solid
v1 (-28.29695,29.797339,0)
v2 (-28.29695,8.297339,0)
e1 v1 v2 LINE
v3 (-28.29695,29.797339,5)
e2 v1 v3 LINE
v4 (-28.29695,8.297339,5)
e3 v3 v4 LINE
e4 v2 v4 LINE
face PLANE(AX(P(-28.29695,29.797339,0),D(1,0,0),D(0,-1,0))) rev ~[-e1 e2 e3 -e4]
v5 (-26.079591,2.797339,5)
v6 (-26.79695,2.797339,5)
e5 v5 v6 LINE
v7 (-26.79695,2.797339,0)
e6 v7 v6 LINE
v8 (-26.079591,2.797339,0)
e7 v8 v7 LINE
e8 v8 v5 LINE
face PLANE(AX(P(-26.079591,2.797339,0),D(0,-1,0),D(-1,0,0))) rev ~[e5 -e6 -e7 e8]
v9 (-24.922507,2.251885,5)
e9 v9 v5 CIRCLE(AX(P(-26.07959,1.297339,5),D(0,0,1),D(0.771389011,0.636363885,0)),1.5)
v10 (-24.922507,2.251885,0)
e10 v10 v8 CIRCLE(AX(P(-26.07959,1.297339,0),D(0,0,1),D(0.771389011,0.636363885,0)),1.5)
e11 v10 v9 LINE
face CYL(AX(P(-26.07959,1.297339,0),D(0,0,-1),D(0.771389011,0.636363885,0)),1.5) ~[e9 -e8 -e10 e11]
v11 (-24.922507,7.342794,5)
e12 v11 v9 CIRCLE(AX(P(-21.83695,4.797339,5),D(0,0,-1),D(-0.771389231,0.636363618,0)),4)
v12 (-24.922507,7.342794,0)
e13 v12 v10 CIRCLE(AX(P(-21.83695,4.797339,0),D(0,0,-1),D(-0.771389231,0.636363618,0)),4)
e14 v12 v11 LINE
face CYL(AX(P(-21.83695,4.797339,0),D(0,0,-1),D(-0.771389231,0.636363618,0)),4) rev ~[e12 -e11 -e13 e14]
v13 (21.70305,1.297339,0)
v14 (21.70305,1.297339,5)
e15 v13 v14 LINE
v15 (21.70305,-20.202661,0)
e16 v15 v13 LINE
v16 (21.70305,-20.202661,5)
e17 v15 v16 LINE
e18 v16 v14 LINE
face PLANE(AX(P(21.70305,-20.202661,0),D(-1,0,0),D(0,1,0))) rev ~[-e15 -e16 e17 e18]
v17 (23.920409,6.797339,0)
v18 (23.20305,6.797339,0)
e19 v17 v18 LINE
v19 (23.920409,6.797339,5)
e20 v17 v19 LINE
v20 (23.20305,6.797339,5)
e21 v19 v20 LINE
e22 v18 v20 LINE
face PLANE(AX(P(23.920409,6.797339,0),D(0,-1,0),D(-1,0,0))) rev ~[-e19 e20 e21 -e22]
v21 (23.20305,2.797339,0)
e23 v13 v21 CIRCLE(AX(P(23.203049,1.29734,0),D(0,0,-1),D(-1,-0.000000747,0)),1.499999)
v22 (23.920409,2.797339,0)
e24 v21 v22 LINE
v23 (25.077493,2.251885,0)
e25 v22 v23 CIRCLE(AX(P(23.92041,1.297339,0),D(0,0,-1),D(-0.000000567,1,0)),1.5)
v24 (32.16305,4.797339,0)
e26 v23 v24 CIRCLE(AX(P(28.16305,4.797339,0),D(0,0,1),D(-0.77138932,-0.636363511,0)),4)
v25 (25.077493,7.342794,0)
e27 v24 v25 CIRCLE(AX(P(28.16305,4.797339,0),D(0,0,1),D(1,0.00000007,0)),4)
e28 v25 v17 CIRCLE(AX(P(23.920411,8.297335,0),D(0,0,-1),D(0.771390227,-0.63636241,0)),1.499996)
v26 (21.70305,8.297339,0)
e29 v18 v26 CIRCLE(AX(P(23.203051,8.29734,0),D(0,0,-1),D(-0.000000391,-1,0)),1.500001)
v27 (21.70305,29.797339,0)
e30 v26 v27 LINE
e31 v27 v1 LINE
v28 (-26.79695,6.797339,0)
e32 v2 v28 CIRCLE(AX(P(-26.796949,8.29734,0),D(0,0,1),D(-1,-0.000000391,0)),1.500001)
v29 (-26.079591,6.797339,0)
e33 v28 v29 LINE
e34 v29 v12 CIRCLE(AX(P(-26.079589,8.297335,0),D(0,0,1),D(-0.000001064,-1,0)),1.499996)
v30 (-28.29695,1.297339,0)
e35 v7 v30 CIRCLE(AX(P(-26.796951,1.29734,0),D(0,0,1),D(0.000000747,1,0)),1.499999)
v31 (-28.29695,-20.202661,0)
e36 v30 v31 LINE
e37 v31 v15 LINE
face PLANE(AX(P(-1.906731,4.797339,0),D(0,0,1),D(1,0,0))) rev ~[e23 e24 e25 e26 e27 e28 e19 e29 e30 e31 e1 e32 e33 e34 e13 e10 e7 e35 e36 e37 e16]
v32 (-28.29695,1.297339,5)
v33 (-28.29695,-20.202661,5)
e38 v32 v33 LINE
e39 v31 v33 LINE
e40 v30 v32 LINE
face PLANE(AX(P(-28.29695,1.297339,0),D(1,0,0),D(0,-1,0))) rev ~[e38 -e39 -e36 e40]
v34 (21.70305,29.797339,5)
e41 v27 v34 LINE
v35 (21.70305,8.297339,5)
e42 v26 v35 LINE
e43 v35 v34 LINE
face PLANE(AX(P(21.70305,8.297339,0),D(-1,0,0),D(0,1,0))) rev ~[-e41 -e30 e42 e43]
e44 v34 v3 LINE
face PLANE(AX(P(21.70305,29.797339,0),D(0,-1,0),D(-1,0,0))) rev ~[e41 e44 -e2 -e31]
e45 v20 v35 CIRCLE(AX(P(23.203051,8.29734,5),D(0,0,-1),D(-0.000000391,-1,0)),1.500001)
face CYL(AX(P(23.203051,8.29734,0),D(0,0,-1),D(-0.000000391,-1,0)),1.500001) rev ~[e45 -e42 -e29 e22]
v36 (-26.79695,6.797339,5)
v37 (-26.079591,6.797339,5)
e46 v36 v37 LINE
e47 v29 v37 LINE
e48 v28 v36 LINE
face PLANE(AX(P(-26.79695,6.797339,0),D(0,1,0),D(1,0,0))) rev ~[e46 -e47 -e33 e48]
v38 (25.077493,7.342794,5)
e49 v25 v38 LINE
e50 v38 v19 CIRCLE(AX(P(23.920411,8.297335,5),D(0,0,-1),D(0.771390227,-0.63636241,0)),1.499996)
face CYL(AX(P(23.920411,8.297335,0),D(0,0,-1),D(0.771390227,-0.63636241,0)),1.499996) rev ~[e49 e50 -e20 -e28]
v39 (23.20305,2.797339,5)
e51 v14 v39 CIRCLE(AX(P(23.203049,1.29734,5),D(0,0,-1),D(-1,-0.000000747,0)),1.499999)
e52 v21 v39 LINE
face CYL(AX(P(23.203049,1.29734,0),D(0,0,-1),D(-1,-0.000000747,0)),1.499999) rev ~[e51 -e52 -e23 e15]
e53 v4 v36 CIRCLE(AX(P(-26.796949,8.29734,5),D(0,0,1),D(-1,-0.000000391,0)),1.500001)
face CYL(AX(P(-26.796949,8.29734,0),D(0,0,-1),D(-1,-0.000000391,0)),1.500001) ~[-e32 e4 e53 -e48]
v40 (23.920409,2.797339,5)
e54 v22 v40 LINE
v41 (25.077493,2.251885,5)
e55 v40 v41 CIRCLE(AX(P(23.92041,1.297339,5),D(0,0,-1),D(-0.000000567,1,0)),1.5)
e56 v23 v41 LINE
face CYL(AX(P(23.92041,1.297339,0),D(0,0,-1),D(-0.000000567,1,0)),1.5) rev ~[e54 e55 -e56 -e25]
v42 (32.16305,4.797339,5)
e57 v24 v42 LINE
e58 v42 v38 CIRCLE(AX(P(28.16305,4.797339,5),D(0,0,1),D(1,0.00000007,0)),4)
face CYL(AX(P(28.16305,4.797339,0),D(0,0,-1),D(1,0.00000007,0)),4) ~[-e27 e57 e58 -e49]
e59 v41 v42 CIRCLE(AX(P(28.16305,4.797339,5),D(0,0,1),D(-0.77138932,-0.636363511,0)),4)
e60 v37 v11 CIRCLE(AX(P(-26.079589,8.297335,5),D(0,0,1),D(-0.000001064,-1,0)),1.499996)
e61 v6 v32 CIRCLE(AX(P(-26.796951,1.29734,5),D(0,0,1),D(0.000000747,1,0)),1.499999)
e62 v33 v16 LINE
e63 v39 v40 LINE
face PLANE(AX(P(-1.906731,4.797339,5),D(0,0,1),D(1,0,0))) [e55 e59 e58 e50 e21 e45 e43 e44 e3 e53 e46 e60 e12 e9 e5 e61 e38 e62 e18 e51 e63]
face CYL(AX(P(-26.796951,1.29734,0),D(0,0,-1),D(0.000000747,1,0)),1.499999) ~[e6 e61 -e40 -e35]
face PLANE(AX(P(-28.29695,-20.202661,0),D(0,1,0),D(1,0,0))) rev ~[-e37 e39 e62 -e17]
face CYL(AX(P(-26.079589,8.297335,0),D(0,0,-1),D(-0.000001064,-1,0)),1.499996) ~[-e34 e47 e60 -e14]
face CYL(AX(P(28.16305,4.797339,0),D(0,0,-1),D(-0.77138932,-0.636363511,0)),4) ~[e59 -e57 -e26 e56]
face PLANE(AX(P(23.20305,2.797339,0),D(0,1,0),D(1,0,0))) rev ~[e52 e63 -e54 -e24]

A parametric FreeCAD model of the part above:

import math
import FreeCAD as App
import Part
import Sketcher
from FreeCAD import Vector

doc = App.newDocument("Part")
params = doc.addObject("Spreadsheet::Sheet", "Params")
for row, (alias, value) in enumerate([
    ("sketch1_radius", "4 mm"),
    ("sketch1_radius2", "1.500001 mm"),
    ("sketch1_width", "50 mm"),
    ("sketch1_height", "21.5 mm"),
    ("pad1_length", "5 mm"),
], start=1):
    params.set(f"A{row}", alias)
    params.set(f"B{row}", "=" + value)
    params.setAlias(f"B{row}", alias)

body = doc.addObject("PartDesign::Body", "Body")

sketch1 = body.newObject("Sketcher::SketchObject", "Sketch")
sketch1.AttachmentSupport = (doc.getObject("XY_Plane"), [""])
sketch1.MapMode = "FlatFace"
sketch1.addGeometry([
    Part.LineSegment(Vector(21.7, 29.8, 0), Vector(-28.3, 29.8, 0)),
    Part.LineSegment(Vector(-28.3, 29.8, 0), Vector(-28.3, 8.3, 0)),
    Part.ArcOfCircle(Part.Circle(Vector(-26.8, 8.3, 0), Vector(0, 0, 1), 1.5), math.radians(-180), math.radians(-90)),
    Part.LineSegment(Vector(-26.8, 6.8, 0), Vector(-26.1, 6.8, 0)),
    Part.ArcOfCircle(Part.Circle(Vector(-26.1, 8.3, 0), Vector(0, 0, 1), 1.5), math.radians(-90), math.radians(-40)),
    Part.ArcOfCircle(Part.Circle(Vector(-21.8, 4.8, 0), Vector(0, 0, 1), 4), math.radians(-140), math.radians(140)),
    Part.ArcOfCircle(Part.Circle(Vector(-26.1, 1.3, 0), Vector(0, 0, 1), 1.5), math.radians(40), math.radians(90)),
    Part.LineSegment(Vector(-26.1, 2.8, 0), Vector(-26.8, 2.8, 0)),
    Part.ArcOfCircle(Part.Circle(Vector(-26.8, 1.3, 0), Vector(0, 0, 1), 1.5), math.radians(90), math.radians(180)),
    Part.LineSegment(Vector(-28.3, 1.3, 0), Vector(-28.3, -20.2, 0)),
    Part.LineSegment(Vector(-28.3, -20.2, 0), Vector(21.7, -20.2, 0)),
    Part.LineSegment(Vector(21.7, -20.2, 0), Vector(21.7, 1.3, 0)),
    Part.ArcOfCircle(Part.Circle(Vector(23.2, 1.3, 0), Vector(0, 0, 1), 1.5), math.radians(90), math.radians(180)),
    Part.LineSegment(Vector(23.2, 2.8, 0), Vector(23.9, 2.8, 0)),
    Part.ArcOfCircle(Part.Circle(Vector(23.9, 1.3, 0), Vector(0, 0, 1), 1.5), math.radians(40), math.radians(90)),
    Part.ArcOfCircle(Part.Circle(Vector(28.2, 4.8, 0), Vector(0, 0, 1), 4), math.radians(-140), math.radians(0)),
    Part.ArcOfCircle(Part.Circle(Vector(28.2, 4.8, 0), Vector(0, 0, 1), 4), math.radians(0), math.radians(140)),
    Part.ArcOfCircle(Part.Circle(Vector(23.9, 8.3, 0), Vector(0, 0, 1), 1.5), math.radians(-90), math.radians(-40)),
    Part.LineSegment(Vector(23.9, 6.8, 0), Vector(23.2, 6.8, 0)),
    Part.ArcOfCircle(Part.Circle(Vector(23.2, 8.3, 0), Vector(0, 0, 1), 1.5), math.radians(-180), math.radians(-90)),
    Part.LineSegment(Vector(21.7, 8.3, 0), Vector(21.7, 29.8, 0)),
], False)
sketch1.addConstraint([
    Sketcher.Constraint("Coincident", 0, 2, 1, 1),
    Sketcher.Constraint("Tangent", 1, 2, 2, 1),
    Sketcher.Constraint("Tangent", 2, 2, 3, 1),
    Sketcher.Constraint("Tangent", 3, 2, 4, 1),
    Sketcher.Constraint("Tangent", 4, 2, 5, 2),
    Sketcher.Constraint("Tangent", 5, 1, 6, 1),
    Sketcher.Constraint("Tangent", 6, 2, 7, 1),
    Sketcher.Constraint("Tangent", 7, 2, 8, 1),
    Sketcher.Constraint("Tangent", 8, 2, 9, 1),
    Sketcher.Constraint("Coincident", 9, 2, 10, 1),
    Sketcher.Constraint("Coincident", 10, 2, 11, 1),
    Sketcher.Constraint("Tangent", 11, 2, 12, 2),
    Sketcher.Constraint("Tangent", 12, 1, 13, 1),
    Sketcher.Constraint("Tangent", 13, 2, 14, 2),
    Sketcher.Constraint("Tangent", 14, 1, 15, 1),
    Sketcher.Constraint("Tangent", 15, 2, 16, 1),
    Sketcher.Constraint("Tangent", 16, 2, 17, 2),
    Sketcher.Constraint("Tangent", 17, 1, 18, 1),
    Sketcher.Constraint("Tangent", 18, 2, 19, 2),
    Sketcher.Constraint("Tangent", 19, 1, 20, 1),
    Sketcher.Constraint("Coincident", 20, 2, 0, 1),
    Sketcher.Constraint("Horizontal", 0),
    Sketcher.Constraint("Vertical", 1),
    Sketcher.Constraint("Horizontal", 3),
    Sketcher.Constraint("Horizontal", 7),
    Sketcher.Constraint("Vertical", 9),
    Sketcher.Constraint("Horizontal", 10),
    Sketcher.Constraint("Vertical", 11),
    Sketcher.Constraint("Horizontal", 13),
    Sketcher.Constraint("Horizontal", 18),
    Sketcher.Constraint("Vertical", 20),
    Sketcher.Constraint("Equal", 2, 6),
    Sketcher.Constraint("Equal", 6, 8),
    Sketcher.Constraint("Equal", 8, 12),
    Sketcher.Constraint("Equal", 12, 14),
    Sketcher.Constraint("Equal", 5, 15),
    Sketcher.Constraint("Equal", 15, 16),
    Sketcher.Constraint("Equal", 4, 17),
    Sketcher.Constraint("Equal", 14, 19),
    Sketcher.Constraint("Horizontal", 8, 3, 12, 3),
    Sketcher.Constraint("Horizontal", 5, 3, 15, 3),
    Sketcher.Constraint("Horizontal", 4, 3, 17, 3),
    Sketcher.Constraint("Horizontal", 16, 3, 15, 2),
    Sketcher.Constraint("Vertical", 4, 3, 6, 3),
    Sketcher.Constraint("Vertical", 2, 3, 8, 3),
    Sketcher.Constraint("Vertical", 12, 3, 19, 3),
    Sketcher.Constraint("Vertical", 4, 2, 5, 1),
    Sketcher.Constraint("Equal", 7, 13),
    Sketcher.Constraint("Equal", 1, 9),
    Sketcher.Constraint("Radius", 5, 4.0),
    Sketcher.Constraint("Radius", 2, 1.500001),
    Sketcher.Constraint("DistanceX", 0, 2, 0, 1, 50.0),
    Sketcher.Constraint("DistanceY", 1, 2, 1, 1, 21.5),
    Sketcher.Constraint("DistanceY", 6, 3, 2, 3, 7.0),
    Sketcher.Constraint("DistanceX", 2, 3, 5, 3, 4.959999),
    Sketcher.Constraint("DistanceX", 2, 3, -1, 1, 26.796949),
    Sketcher.Constraint("DistanceY", -1, 1, 2, 3, 8.29734),
])
sketch1.setExpression("Constraints[49]", "Params.sketch1_radius")
sketch1.setExpression("Constraints[50]", "Params.sketch1_radius2")
sketch1.setExpression("Constraints[51]", "Params.sketch1_width")
sketch1.setExpression("Constraints[52]", "Params.sketch1_height")
pad1 = body.newObject("PartDesign::Pad", "Pad")
pad1.Profile = sketch1
pad1.setExpression("Length", "Params.pad1_length")

doc.recompute()
